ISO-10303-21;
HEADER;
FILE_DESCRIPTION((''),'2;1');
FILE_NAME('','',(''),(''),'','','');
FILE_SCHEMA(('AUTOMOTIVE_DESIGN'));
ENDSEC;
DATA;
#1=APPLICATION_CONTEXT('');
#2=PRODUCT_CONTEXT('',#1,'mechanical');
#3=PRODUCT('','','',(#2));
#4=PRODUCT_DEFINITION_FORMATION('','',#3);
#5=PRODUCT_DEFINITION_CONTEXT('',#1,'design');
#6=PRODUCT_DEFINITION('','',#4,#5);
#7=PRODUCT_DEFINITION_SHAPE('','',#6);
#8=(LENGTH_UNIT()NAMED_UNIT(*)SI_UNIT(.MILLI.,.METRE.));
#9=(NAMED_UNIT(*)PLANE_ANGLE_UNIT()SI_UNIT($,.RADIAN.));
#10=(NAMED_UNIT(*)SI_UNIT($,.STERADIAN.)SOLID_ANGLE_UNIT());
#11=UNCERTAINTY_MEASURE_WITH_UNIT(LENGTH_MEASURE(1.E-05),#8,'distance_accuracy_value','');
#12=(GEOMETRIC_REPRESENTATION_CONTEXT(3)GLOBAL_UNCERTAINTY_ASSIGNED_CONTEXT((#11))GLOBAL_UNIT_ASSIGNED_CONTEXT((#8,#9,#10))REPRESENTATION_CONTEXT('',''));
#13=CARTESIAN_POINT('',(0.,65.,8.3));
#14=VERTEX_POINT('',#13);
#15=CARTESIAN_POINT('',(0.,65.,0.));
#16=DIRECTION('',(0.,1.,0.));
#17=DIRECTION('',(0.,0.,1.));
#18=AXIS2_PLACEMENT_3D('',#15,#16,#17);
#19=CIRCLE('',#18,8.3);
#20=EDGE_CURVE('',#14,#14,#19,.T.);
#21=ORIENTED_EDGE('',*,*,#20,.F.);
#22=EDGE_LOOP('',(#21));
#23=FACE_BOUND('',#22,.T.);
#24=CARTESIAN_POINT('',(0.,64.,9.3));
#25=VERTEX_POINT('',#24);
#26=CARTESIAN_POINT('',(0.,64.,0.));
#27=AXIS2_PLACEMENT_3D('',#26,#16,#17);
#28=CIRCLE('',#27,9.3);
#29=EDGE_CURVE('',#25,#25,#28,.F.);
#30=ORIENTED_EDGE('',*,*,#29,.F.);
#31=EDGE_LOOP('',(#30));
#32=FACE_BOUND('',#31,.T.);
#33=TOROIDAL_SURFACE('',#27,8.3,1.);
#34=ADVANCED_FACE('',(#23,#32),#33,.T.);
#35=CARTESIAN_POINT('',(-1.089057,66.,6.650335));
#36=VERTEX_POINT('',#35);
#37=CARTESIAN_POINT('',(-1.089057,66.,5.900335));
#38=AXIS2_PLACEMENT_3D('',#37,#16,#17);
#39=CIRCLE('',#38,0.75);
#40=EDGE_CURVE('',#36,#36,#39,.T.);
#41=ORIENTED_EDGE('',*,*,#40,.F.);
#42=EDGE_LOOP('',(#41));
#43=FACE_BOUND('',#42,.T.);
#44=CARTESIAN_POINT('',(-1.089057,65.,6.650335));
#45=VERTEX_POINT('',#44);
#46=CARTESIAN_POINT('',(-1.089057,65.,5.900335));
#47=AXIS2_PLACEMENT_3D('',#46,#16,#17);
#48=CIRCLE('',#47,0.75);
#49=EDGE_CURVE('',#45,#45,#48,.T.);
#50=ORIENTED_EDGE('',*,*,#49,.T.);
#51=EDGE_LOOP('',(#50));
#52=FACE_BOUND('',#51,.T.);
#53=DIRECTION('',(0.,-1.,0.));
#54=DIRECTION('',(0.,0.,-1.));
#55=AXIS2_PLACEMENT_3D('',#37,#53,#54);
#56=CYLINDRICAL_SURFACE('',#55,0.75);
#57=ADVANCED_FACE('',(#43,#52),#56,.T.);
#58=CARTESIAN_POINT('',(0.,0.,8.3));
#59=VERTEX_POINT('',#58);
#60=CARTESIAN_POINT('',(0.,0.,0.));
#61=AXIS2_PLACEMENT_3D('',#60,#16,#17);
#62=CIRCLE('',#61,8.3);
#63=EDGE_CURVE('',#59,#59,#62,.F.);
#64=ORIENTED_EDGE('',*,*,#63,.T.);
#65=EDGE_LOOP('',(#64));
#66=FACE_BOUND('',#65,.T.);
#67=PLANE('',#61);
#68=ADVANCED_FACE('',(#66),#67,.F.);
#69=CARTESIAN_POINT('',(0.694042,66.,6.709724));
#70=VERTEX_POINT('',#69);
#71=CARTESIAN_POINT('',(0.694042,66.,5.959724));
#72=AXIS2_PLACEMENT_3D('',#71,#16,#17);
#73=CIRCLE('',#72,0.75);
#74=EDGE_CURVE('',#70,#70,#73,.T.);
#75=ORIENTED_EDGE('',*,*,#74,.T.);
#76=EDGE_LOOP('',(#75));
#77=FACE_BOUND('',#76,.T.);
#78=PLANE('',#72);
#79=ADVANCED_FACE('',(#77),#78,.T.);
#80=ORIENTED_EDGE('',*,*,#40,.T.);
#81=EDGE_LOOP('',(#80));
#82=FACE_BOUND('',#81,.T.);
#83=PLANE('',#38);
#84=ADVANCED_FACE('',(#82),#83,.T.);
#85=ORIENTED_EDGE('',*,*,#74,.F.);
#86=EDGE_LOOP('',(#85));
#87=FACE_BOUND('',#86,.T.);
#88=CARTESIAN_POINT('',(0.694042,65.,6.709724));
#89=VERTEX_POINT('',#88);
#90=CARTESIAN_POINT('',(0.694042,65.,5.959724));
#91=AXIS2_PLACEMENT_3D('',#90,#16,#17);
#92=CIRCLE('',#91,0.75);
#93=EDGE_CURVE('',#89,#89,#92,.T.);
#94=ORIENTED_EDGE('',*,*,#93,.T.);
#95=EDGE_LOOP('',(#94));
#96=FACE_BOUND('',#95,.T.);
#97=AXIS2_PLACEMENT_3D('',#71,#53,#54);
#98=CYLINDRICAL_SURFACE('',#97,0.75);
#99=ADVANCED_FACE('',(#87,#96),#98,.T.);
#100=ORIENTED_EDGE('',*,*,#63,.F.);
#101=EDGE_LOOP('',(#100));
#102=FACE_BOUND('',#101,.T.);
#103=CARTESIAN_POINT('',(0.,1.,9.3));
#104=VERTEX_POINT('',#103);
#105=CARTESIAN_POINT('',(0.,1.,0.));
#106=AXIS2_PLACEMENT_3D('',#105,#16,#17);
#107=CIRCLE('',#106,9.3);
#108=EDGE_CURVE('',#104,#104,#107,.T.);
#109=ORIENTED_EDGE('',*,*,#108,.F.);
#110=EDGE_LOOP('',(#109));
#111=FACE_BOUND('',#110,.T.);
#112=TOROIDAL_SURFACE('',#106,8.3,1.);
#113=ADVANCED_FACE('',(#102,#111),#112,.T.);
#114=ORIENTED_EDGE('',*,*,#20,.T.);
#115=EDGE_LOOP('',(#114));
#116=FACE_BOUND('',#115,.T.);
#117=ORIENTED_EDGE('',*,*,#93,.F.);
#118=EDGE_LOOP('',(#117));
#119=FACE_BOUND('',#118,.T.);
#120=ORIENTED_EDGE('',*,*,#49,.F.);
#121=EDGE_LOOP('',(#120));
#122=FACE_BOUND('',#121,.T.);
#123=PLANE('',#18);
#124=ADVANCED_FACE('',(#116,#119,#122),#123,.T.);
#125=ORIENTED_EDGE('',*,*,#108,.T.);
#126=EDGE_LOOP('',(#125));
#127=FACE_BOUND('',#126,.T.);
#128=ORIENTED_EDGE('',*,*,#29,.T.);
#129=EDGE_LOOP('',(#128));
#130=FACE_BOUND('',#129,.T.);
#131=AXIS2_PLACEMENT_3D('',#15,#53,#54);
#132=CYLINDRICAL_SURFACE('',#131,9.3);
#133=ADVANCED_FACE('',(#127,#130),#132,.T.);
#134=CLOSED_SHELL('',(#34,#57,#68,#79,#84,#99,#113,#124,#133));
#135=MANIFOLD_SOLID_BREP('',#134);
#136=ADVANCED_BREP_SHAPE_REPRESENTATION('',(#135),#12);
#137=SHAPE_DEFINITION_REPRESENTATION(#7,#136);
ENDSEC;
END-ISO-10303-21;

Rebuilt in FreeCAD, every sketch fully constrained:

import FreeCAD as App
import Part
import Sketcher

V = App.Vector


def edges_at(feature, points):
    """Names of the edges that pass closest to the given points."""
    edges = feature.Shape.Edges
    near = lambda p: min(range(len(edges)), key=lambda i: edges[i].distToShape(Part.Vertex(*p))[0])
    return sorted({f"Edge{near(p) + 1}" for p in points})

doc = App.newDocument("Part")
body = doc.addObject("PartDesign::Body", "Body")

# Sketch on XZ plane
sketch1 = doc.addObject("Sketcher::SketchObject", "Sketch")
body.addObject(sketch1)
sketch1.AttachmentSupport = (doc.XZ_Plane, [""])
sketch1.MapMode = "FlatFace"
sketch1.addGeometry(Part.Circle(V(0, 0, 0), V(0, 0, 1), 9.3), False)
sketch1.addConstraint([
    Sketcher.Constraint("Coincident", 0, 3, -1, 1),
    Sketcher.Constraint("Diameter", 0, 18.6),
])
pad1 = doc.addObject("PartDesign::Pad", "Pad")
body.addObject(pad1)
pad1.Profile = sketch1
pad1.Length = 65
pad1.Reversed = True
doc.recompute()

fillet = doc.addObject("PartDesign::Fillet", "Fillet")
body.addObject(fillet)
fillet.Base = (pad1, edges_at(pad1, [(-9.3, 0, 0), (-9.3, 65, 0)]))
fillet.Radius = 1

# Sketch on XZ plane
sketch2 = doc.addObject("Sketcher::SketchObject", "Sketch001")
body.addObject(sketch2)
sketch2.AttachmentSupport = (doc.XZ_Plane, [""])
sketch2.MapMode = "FlatFace"
sketch2.AttachmentOffset = App.Placement(V(0, 0, -65), App.Rotation())
sketch2.addGeometry([
    Part.Circle(V(-1.089057, 5.900335, 0), V(0, 0, 1), 0.75),
    Part.Circle(V(0.694042, 5.959724, 0), V(0, 0, 1), 0.75),
], False)
sketch2.addConstraint([
    Sketcher.Constraint("Equal", 0, 1),
    Sketcher.Constraint("Diameter", 0, 1.5),
    Sketcher.Constraint("DistanceX", 0, 3, 1, 3, 1.783099),
    Sketcher.Constraint("DistanceX", -1, 1, 1, 3, 0.694042),
    Sketcher.Constraint("DistanceY", 0, 3, 1, 3, 0.059389),
    Sketcher.Constraint("DistanceY", -1, 1, 0, 3, 5.900335),
])
pad2 = doc.addObject("PartDesign::Pad", "Pad001")
body.addObject(pad2)
pad2.Profile = sketch2
pad2.Length = 1
pad2.Reversed = True

doc.recompute()
